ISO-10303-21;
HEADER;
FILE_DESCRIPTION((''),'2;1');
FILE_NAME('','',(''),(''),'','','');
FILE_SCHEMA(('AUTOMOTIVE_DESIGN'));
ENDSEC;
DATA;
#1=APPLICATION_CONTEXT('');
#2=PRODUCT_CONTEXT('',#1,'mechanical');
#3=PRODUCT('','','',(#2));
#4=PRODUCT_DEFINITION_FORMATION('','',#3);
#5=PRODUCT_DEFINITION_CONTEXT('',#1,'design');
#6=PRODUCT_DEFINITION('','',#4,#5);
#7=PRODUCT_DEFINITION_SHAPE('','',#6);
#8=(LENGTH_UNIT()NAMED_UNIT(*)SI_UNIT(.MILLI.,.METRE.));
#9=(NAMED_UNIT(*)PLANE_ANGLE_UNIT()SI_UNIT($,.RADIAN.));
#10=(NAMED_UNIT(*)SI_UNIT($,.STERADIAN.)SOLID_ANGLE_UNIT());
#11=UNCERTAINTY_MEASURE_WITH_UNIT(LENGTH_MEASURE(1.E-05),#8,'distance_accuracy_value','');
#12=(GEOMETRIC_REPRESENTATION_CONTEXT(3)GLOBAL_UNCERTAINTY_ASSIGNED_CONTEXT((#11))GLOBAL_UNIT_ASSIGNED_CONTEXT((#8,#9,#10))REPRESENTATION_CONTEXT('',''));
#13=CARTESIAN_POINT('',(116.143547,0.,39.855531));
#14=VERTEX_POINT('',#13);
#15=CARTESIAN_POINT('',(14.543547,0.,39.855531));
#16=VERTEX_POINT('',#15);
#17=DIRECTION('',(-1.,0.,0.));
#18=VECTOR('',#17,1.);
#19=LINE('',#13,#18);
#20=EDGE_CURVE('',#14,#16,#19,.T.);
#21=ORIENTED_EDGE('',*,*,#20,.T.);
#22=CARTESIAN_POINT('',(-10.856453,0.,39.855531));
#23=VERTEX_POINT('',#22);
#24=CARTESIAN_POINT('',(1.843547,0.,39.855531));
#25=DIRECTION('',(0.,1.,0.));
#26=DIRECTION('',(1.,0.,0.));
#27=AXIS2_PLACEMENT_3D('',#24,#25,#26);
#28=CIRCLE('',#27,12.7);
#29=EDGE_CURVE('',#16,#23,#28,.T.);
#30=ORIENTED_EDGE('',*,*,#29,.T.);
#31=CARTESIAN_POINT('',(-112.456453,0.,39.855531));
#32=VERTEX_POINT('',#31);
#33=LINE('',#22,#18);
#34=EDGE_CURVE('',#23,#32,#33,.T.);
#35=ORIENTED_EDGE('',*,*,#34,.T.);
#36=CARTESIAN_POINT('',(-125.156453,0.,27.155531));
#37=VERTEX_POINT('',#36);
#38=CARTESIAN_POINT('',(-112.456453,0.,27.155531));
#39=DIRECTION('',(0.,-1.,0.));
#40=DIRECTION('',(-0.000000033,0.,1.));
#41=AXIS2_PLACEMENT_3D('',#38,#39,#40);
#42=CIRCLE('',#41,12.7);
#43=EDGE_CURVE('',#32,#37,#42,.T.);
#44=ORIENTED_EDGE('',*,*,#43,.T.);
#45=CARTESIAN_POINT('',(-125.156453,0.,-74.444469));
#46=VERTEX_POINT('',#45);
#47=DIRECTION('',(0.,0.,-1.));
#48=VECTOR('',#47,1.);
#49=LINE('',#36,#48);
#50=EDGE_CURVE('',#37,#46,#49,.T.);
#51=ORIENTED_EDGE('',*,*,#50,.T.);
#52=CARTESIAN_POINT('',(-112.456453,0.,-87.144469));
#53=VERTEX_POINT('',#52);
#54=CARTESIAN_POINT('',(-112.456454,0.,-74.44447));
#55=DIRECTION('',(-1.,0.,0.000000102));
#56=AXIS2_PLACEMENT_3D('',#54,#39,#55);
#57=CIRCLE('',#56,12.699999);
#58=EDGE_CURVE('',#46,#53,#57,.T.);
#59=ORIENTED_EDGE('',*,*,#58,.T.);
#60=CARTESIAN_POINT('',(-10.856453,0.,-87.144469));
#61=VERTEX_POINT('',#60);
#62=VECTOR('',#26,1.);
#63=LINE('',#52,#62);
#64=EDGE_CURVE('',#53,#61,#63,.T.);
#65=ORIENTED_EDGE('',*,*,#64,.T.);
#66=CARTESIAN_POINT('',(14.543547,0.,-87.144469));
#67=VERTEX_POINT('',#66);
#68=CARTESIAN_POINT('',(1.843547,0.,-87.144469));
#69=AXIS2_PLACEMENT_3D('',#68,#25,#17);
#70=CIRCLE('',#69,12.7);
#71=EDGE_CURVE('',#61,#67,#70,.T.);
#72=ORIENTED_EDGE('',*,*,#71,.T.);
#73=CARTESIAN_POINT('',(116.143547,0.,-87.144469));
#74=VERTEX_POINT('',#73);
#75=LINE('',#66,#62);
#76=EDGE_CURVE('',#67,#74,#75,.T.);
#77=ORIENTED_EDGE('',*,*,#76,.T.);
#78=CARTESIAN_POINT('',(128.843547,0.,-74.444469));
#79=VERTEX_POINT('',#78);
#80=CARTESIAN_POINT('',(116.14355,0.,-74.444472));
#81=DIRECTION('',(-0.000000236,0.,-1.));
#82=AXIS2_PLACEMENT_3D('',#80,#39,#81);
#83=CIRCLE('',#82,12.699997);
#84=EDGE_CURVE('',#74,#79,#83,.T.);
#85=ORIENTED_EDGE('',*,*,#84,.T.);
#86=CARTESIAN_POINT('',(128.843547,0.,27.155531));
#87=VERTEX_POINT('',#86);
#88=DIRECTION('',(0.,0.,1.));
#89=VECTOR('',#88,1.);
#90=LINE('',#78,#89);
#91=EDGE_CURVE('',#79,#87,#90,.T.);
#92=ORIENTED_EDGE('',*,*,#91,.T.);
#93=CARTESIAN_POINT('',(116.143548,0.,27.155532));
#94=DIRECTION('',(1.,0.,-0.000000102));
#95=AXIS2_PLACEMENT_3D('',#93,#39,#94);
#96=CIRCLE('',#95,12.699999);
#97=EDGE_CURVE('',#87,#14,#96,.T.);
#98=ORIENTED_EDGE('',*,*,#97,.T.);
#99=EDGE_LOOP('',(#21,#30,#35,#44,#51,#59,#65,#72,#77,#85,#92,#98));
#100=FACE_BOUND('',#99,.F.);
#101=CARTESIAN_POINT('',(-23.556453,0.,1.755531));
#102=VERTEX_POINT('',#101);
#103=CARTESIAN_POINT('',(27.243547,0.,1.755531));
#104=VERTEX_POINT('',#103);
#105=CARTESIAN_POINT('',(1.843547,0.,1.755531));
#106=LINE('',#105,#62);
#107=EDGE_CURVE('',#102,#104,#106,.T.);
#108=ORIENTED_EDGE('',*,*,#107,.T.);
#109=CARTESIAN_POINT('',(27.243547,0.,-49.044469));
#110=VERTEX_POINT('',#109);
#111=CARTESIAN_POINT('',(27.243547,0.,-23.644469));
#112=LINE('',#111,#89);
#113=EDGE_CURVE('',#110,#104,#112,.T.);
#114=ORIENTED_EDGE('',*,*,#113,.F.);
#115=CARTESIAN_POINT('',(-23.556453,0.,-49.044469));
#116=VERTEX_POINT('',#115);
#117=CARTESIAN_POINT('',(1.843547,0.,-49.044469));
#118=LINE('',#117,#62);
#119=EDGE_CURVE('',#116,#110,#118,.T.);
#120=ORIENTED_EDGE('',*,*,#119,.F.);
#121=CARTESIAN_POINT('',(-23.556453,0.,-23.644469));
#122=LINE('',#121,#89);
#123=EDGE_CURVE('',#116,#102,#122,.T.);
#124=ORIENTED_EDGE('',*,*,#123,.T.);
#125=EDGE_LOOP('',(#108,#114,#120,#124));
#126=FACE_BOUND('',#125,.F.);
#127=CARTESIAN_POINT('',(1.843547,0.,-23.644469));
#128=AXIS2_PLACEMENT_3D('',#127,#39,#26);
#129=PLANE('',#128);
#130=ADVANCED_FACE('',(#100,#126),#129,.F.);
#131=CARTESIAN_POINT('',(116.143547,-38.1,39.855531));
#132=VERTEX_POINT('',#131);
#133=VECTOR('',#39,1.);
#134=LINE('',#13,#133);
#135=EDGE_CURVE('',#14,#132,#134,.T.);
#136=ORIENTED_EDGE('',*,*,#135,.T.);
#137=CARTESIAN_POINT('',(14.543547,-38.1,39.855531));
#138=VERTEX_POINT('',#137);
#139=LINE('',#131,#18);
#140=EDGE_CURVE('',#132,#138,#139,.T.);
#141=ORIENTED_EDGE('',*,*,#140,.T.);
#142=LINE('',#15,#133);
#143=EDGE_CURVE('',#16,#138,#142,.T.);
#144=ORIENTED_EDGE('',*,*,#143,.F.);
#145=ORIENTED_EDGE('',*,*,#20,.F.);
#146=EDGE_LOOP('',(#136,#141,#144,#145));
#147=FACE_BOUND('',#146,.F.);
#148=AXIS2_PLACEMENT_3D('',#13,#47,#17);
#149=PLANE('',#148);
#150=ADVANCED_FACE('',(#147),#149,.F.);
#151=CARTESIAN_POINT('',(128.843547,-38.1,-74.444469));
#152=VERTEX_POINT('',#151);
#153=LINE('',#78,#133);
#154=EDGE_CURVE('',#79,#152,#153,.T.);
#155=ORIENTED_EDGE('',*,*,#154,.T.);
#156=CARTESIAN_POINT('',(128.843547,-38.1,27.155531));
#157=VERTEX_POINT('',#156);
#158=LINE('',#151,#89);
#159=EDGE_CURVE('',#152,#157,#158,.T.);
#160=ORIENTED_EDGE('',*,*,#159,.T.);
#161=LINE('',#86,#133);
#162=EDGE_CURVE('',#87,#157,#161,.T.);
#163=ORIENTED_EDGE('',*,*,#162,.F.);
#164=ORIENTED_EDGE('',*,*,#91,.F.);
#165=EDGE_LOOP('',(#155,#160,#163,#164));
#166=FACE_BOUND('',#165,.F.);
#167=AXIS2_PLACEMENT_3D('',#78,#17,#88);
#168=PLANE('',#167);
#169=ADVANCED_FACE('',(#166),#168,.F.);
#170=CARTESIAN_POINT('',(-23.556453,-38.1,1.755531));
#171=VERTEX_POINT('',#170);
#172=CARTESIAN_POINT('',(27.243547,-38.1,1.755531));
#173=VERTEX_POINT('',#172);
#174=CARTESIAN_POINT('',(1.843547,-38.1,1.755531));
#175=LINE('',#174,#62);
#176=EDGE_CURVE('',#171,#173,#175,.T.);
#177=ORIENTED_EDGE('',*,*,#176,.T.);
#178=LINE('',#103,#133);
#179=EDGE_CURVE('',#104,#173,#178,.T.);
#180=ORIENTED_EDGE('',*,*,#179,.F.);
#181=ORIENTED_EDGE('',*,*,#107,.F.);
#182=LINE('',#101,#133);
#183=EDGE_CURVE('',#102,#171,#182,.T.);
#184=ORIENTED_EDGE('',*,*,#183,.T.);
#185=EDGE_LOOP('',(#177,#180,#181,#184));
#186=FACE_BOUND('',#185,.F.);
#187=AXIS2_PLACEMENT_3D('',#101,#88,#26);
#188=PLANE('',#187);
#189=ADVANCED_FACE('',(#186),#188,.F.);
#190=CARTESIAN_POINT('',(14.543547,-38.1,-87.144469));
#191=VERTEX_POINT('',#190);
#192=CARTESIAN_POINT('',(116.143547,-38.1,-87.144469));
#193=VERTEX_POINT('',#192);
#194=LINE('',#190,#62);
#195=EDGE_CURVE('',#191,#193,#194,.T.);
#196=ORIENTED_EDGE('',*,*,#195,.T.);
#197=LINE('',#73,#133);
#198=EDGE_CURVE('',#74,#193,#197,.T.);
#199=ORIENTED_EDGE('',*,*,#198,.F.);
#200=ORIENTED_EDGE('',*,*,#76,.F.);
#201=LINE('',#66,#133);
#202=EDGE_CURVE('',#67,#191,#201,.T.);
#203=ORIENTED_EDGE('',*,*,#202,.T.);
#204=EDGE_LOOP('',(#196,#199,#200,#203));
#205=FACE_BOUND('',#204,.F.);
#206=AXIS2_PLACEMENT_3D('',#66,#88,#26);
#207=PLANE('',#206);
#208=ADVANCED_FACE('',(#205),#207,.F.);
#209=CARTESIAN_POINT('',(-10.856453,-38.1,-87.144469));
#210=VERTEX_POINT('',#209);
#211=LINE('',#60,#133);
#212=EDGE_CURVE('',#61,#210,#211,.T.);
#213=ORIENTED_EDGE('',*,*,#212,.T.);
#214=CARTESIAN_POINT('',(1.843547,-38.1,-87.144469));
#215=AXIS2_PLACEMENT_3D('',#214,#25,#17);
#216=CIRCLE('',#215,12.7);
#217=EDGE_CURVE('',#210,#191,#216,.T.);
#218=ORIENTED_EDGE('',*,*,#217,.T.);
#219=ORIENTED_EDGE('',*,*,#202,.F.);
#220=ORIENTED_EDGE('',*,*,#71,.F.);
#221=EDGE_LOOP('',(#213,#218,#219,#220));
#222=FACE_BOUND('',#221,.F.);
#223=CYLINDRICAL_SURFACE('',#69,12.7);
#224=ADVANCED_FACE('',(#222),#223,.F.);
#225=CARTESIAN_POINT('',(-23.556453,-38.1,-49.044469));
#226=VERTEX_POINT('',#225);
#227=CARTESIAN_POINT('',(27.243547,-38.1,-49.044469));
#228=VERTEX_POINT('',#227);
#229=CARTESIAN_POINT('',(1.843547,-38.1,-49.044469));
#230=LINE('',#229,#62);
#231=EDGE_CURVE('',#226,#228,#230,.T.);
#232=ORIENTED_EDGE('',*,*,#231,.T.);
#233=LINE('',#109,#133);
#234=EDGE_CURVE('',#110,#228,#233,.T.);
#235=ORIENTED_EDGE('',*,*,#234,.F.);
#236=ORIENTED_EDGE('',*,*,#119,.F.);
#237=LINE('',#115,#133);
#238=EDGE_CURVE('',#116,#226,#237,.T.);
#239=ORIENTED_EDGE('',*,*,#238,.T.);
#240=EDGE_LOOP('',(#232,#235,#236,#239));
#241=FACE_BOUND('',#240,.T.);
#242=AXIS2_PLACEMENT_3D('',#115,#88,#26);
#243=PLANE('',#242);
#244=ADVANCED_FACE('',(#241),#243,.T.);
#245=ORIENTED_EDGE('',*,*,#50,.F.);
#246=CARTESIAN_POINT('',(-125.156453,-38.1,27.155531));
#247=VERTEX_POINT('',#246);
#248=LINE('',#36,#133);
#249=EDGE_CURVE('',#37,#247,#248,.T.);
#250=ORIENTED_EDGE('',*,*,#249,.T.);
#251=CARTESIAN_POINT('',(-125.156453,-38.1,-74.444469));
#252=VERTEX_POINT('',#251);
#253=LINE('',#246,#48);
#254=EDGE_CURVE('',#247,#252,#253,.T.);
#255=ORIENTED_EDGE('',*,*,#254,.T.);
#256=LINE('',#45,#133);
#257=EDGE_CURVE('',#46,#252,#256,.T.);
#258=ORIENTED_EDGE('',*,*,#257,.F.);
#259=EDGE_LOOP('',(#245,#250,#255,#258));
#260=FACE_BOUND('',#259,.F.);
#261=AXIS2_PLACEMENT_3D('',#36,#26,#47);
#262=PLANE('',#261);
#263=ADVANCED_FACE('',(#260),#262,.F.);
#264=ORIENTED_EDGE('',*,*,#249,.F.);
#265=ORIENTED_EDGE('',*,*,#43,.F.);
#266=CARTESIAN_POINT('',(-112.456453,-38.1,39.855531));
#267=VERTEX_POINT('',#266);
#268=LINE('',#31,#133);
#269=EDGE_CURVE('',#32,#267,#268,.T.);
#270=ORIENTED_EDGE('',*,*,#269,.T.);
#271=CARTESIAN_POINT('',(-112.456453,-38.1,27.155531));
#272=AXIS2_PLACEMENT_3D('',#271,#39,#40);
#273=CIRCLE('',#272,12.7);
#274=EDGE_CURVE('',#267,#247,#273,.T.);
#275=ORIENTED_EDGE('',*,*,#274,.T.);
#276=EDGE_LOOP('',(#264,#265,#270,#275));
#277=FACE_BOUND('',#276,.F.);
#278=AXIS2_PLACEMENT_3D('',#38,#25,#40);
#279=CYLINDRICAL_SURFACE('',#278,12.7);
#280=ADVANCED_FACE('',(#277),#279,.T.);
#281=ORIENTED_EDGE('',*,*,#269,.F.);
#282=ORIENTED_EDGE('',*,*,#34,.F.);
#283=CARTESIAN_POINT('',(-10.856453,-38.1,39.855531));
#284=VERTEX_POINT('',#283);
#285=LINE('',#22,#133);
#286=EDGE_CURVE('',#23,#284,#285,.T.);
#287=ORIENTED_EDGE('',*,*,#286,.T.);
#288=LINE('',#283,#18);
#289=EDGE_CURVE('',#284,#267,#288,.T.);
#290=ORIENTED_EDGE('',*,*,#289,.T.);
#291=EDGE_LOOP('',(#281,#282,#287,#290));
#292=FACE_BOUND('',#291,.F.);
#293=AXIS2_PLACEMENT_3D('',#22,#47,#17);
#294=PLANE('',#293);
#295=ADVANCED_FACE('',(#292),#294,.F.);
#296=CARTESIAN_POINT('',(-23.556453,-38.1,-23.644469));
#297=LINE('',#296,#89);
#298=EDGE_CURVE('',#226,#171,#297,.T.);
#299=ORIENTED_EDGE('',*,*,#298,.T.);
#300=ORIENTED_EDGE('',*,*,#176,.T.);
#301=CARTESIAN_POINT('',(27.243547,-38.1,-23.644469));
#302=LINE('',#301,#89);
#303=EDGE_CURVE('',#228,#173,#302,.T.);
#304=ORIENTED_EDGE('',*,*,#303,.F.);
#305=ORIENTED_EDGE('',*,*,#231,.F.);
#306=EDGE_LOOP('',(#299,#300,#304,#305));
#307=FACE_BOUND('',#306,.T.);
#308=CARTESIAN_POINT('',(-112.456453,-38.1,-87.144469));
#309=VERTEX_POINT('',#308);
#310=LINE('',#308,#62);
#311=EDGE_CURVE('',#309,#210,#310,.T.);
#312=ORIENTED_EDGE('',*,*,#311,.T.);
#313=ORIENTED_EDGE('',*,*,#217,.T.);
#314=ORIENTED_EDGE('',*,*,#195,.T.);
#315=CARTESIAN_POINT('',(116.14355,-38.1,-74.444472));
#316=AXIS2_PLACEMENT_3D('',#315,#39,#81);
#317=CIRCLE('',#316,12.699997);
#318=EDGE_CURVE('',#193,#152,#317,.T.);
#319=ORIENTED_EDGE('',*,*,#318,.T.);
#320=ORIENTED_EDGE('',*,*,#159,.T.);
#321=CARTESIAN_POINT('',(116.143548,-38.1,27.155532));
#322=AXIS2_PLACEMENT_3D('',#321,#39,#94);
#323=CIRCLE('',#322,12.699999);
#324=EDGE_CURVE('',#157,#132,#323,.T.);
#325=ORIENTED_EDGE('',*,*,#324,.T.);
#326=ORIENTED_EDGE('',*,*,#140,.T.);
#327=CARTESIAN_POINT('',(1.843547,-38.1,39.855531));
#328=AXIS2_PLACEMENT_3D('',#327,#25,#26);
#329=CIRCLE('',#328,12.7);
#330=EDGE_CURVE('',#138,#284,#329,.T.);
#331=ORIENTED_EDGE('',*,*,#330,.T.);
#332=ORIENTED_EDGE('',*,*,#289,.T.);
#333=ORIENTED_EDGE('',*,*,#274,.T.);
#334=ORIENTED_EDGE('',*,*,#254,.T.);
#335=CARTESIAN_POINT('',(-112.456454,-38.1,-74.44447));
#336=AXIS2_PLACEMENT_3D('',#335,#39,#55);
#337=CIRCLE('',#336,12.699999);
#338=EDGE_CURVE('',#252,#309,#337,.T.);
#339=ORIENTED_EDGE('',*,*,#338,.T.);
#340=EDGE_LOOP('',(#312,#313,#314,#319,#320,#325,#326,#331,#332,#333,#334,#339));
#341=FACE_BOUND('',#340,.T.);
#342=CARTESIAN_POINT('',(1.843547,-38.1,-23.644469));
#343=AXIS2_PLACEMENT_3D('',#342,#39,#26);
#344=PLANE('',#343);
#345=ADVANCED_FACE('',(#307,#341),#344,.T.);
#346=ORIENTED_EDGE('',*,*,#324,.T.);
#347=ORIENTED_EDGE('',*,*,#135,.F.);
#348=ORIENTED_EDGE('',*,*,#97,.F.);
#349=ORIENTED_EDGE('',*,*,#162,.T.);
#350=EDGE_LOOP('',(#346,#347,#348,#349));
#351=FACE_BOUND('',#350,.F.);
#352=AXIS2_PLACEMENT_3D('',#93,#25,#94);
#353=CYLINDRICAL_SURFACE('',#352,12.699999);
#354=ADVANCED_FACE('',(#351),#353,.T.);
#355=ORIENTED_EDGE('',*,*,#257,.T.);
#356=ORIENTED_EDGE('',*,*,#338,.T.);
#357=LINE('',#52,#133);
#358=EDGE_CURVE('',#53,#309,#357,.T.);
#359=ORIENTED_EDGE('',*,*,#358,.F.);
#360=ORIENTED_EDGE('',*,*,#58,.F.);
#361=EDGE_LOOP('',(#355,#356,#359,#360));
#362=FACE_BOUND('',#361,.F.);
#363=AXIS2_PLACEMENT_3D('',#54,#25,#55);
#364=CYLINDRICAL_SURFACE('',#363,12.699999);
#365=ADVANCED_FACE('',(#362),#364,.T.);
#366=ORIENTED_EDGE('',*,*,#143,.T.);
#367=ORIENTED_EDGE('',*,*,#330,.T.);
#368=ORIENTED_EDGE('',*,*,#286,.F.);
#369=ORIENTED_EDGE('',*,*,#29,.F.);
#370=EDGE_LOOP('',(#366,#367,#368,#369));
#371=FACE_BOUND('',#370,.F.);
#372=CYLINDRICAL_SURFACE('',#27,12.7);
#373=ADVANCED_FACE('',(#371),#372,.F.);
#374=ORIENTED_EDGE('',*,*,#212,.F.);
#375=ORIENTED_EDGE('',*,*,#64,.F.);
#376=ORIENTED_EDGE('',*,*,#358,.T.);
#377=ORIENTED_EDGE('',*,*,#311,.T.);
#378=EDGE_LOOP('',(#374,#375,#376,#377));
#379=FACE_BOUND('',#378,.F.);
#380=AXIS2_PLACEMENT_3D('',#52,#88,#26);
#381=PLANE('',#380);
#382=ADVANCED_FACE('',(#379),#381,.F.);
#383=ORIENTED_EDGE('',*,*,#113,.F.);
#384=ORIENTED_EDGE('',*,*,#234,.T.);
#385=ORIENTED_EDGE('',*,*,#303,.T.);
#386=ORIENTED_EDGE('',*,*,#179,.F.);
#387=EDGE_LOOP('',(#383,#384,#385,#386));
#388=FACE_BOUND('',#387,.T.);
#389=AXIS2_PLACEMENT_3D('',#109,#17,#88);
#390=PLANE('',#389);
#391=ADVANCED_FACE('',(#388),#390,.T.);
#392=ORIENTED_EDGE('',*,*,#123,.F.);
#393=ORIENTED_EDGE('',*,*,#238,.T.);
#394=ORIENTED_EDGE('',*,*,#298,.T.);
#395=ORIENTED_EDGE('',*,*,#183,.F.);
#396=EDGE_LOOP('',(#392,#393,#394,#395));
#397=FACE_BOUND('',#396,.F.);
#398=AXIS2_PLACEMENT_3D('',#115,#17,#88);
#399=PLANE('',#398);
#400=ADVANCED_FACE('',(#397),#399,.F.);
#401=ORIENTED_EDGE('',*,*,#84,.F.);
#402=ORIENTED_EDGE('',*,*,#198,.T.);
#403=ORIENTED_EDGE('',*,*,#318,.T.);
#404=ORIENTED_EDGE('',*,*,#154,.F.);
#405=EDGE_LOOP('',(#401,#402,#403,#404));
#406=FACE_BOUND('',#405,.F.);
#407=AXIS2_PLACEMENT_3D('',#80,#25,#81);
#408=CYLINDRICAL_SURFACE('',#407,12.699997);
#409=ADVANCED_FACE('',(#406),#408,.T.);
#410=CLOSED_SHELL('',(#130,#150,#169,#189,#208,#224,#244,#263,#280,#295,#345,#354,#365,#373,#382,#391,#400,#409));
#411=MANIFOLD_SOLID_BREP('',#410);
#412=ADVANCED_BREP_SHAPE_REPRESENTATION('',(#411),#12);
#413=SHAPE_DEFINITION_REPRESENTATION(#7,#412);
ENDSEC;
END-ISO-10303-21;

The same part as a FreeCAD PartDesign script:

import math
import FreeCAD as App
import Part
import Sketcher
Q = App.Units.Quantity

doc = App.newDocument("Part")
body = doc.addObject("PartDesign::Body", "Body")

sketch1 = body.newObject("Sketcher::SketchObject", "Sketch")
sketch1.AttachmentSupport = (doc.getObject("XZ_Plane"), [""])
sketch1.MapMode = "FlatFace"
sketch1.addGeometry([
    Part.LineSegment(App.Vector(-11, 40, 0), App.Vector(-112, 40, 0)),
    Part.ArcOfCircle(Part.Circle(App.Vector(-112, 27, 0), App.Vector(0, 0, 1), 13), math.radians(90), math.radians(180)),
    Part.LineSegment(App.Vector(-125, 27, 0), App.Vector(-125, -74, 0)),
    Part.ArcOfCircle(Part.Circle(App.Vector(-112, -74, 0), App.Vector(0, 0, 1), 13), math.radians(180), math.radians(270)),
    Part.LineSegment(App.Vector(-112, -87, 0), App.Vector(-11, -87, 0)),
    Part.ArcOfCircle(Part.Circle(App.Vector(2, -87, 0), App.Vector(0, 0, 1), 13), math.radians(0), math.radians(180)),
    Part.LineSegment(App.Vector(15, -87, 0), App.Vector(116, -87, 0)),
    Part.ArcOfCircle(Part.Circle(App.Vector(116, -74, 0), App.Vector(0, 0, 1), 13), math.radians(-90), math.radians(0)),
    Part.LineSegment(App.Vector(129, -74, 0), App.Vector(129, 27, 0)),
    Part.ArcOfCircle(Part.Circle(App.Vector(116, 27, 0), App.Vector(0, 0, 1), 13), math.radians(0), math.radians(90)),
    Part.LineSegment(App.Vector(116, 40, 0), App.Vector(15, 40, 0)),
    Part.ArcOfCircle(Part.Circle(App.Vector(2, 40, 0), App.Vector(0, 0, 1), 13), math.radians(180), math.radians(360)),
    Part.LineSegment(App.Vector(27, -49, 0), App.Vector(-24, -49, 0)),
    Part.LineSegment(App.Vector(-24, -49, 0), App.Vector(-24, 2, 0)),
    Part.LineSegment(App.Vector(-24, 2, 0), App.Vector(27, 2, 0)),
    Part.LineSegment(App.Vector(27, 2, 0), App.Vector(27, -49, 0)),
], False)
sketch1.addConstraint([
    Sketcher.Constraint("Tangent", 0, 2, 1, 1),
    Sketcher.Constraint("Tangent", 1, 2, 2, 1),
    Sketcher.Constraint("Tangent", 2, 2, 3, 1),
    Sketcher.Constraint("Tangent", 3, 2, 4, 1),
    Sketcher.Constraint("Coincident", 4, 2, 5, 2),
    Sketcher.Constraint("Coincident", 5, 1, 6, 1),
    Sketcher.Constraint("Tangent", 6, 2, 7, 1),
    Sketcher.Constraint("Tangent", 7, 2, 8, 1),
    Sketcher.Constraint("Tangent", 8, 2, 9, 1),
    Sketcher.Constraint("Tangent", 9, 2, 10, 1),
    Sketcher.Constraint("Coincident", 10, 2, 11, 2),
    Sketcher.Constraint("Coincident", 11, 1, 0, 1),
    Sketcher.Constraint("Coincident", 12, 2, 13, 1),
    Sketcher.Constraint("Coincident", 13, 2, 14, 1),
    Sketcher.Constraint("Coincident", 14, 2, 15, 1),
    Sketcher.Constraint("Coincident", 15, 2, 12, 1),
    Sketcher.Constraint("Horizontal", 0),
    Sketcher.Constraint("Vertical", 2),
    Sketcher.Constraint("Horizontal", 4),
    Sketcher.Constraint("Horizontal", 6),
    Sketcher.Constraint("Vertical", 8),
    Sketcher.Constraint("Horizontal", 10),
    Sketcher.Constraint("Horizontal", 12),
    Sketcher.Constraint("Vertical", 13),
    Sketcher.Constraint("Horizontal", 14),
    Sketcher.Constraint("Vertical", 15),
    Sketcher.Constraint("Equal", 1, 3),
    Sketcher.Constraint("Equal", 3, 5),
    Sketcher.Constraint("Equal", 3, 7),
    Sketcher.Constraint("Equal", 7, 9),
    Sketcher.Constraint("Equal", 9, 11),
    Sketcher.Constraint("Horizontal", 3, 3, 7, 3),
    Sketcher.Constraint("Horizontal", 1, 3, 9, 3),
    Sketcher.Constraint("Horizontal", 11, 3, 0, 2),
    Sketcher.Constraint("Horizontal", 5, 3, 3, 2),
    Sketcher.Constraint("Vertical", 5, 3, 11, 3),
    Sketcher.Constraint("Equal", 4, 6),
    Sketcher.Constraint("Equal", 10, 2),
    Sketcher.Constraint("Equal", 14, 13),
    Sketcher.Constraint("Radius", 1, Q("0.5 in")),
    Sketcher.Constraint("DistanceX", 0, 2, 0, 1, Q("4 in")),
    Sketcher.Constraint("DistanceX", 12, 2, 12, 1, Q("2 in")),
    Sketcher.Constraint("DistanceX", 12, 2, 5, 3, Q("1 in")),
    Sketcher.Constraint("DistanceY", 4, 2, 12, 2, Q("1.5 in")),
    Sketcher.Constraint("DistanceY", -1, 1, 1, 3, 27.155531),
    Sketcher.Constraint("DistanceX", -1, 1, 7, 3, 116.14355),
])
pad1 = body.newObject("PartDesign::Pad", "Pad")
pad1.Profile = sketch1
pad1.Length = Q("1.5 in")

doc.recompute()
